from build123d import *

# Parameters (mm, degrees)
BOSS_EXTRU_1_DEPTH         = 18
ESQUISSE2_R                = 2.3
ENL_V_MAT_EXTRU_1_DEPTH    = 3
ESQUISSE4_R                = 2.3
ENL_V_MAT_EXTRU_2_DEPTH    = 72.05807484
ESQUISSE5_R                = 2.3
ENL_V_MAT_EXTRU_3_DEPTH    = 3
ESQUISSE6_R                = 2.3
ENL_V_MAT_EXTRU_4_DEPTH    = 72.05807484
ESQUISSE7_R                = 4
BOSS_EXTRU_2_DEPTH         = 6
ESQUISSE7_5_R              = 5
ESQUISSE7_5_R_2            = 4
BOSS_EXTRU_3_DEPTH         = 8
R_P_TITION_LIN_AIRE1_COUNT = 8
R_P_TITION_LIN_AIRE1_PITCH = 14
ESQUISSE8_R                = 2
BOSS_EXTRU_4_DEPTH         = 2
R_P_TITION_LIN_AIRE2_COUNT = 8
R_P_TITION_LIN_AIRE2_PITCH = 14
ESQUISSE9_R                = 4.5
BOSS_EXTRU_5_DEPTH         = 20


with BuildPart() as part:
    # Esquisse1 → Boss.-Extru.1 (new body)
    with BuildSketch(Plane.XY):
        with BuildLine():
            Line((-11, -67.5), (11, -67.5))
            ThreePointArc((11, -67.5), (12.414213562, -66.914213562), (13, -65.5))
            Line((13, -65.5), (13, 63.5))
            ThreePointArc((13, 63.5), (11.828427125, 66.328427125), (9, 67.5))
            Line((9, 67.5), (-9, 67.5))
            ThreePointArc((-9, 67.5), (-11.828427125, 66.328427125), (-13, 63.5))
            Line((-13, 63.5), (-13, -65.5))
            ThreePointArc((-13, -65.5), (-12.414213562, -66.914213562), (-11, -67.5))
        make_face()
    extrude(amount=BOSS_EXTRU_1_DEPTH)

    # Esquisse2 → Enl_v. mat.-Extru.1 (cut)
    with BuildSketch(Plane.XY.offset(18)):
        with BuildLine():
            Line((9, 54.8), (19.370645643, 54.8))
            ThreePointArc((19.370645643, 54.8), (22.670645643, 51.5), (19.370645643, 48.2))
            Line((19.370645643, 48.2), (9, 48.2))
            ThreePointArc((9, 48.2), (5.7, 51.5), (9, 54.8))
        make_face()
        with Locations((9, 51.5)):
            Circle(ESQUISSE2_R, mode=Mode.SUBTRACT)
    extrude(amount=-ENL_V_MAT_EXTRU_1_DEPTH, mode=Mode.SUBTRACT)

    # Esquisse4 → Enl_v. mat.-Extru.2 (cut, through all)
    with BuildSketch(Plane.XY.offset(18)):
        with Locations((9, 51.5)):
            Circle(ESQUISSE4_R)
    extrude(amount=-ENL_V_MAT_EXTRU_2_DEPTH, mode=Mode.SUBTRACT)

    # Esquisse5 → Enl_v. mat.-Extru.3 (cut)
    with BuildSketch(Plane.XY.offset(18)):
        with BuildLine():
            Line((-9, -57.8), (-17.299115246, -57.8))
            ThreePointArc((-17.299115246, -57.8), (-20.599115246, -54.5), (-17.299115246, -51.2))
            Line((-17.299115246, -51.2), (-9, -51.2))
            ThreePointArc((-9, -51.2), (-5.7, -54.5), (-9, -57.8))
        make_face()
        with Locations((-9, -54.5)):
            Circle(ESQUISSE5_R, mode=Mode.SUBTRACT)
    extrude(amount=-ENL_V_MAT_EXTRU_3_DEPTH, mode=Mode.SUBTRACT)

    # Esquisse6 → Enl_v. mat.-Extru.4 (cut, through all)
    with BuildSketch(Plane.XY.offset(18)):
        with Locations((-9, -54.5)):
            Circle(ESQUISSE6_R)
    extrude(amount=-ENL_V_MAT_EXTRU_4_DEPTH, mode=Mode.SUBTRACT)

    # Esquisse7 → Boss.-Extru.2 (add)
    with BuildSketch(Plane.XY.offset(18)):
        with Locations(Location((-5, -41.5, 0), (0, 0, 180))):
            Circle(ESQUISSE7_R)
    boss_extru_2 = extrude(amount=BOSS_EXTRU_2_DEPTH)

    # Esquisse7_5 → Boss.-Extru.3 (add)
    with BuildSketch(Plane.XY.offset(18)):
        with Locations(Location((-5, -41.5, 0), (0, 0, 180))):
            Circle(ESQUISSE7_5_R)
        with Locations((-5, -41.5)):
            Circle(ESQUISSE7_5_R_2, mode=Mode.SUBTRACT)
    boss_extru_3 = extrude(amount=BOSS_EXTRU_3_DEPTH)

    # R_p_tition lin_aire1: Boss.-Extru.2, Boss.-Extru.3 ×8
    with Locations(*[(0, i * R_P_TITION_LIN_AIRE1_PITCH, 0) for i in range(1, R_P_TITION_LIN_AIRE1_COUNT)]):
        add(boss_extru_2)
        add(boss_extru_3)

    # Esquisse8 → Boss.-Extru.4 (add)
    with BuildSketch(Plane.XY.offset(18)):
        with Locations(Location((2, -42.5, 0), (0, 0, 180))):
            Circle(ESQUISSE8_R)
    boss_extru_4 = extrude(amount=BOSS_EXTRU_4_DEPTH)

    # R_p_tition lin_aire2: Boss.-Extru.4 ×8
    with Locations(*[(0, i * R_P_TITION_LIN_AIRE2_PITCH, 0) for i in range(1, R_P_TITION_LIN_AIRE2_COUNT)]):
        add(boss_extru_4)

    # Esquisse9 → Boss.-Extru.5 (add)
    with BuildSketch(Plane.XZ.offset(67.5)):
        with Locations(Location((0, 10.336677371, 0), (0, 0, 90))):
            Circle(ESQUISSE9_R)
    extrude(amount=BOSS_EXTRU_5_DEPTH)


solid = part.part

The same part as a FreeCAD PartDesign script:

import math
import FreeCAD as App
import Part
import Sketcher

doc = App.newDocument("Part")
body = doc.addObject("PartDesign::Body", "Body")

# Sketch on XY plane
sketch1 = doc.addObject("Sketcher::SketchObject", "Sketch")
body.addObject(sketch1)
sketch1.AttachmentSupport = (doc.XY_Plane, [""])
sketch1.MapMode = "FlatFace"
sketch1.addGeometry(Part.LineSegment(App.Vector(-11, -67.5, 0), App.Vector(11, -67.5, 0)), False)
sketch1.addGeometry(Part.ArcOfCircle(Part.Circle(App.Vector(11, -65.5, 0), App.Vector(0, 0, 1), 2), math.radians(-90), math.radians(0)), False)
sketch1.addGeometry(Part.LineSegment(App.Vector(13, -65.5, 0), App.Vector(13, 63.5, 0)), False)
sketch1.addGeometry(Part.ArcOfCircle(Part.Circle(App.Vector(9, 63.5, 0), App.Vector(0, 0, 1), 4), math.radians(0), math.radians(90)), False)
sketch1.addGeometry(Part.LineSegment(App.Vector(9, 67.5, 0), App.Vector(-9, 67.5, 0)), False)
sketch1.addGeometry(Part.ArcOfCircle(Part.Circle(App.Vector(-9, 63.5, 0), App.Vector(0, 0, 1), 4), math.radians(90), math.radians(180)), False)
sketch1.addGeometry(Part.LineSegment(App.Vector(-13, 63.5, 0), App.Vector(-13, -65.5, 0)), False)
sketch1.addGeometry(Part.ArcOfCircle(Part.Circle(App.Vector(-11, -65.5, 0), App.Vector(0, 0, 1), 2), math.radians(-180), math.radians(-90)), False)
sketch1.addConstraint(Sketcher.Constraint("Tangent", 0, 2, 1, 1))
sketch1.addConstraint(Sketcher.Constraint("Tangent", 1, 2, 2, 1))
sketch1.addConstraint(Sketcher.Constraint("Tangent", 2, 2, 3, 1))
sketch1.addConstraint(Sketcher.Constraint("Tangent", 3, 2, 4, 1))
sketch1.addConstraint(Sketcher.Constraint("Tangent", 4, 2, 5, 1))
sketch1.addConstraint(Sketcher.Constraint("Tangent", 5, 2, 6, 1))
sketch1.addConstraint(Sketcher.Constraint("Tangent", 6, 2, 7, 1))
sketch1.addConstraint(Sketcher.Constraint("Tangent", 7, 2, 0, 1))
sketch1.addConstraint(Sketcher.Constraint("Horizontal", 0))
sketch1.addConstraint(Sketcher.Constraint("Vertical", 2))
sketch1.addConstraint(Sketcher.Constraint("Horizontal", 4))
sketch1.addConstraint(Sketcher.Constraint("Vertical", 6))
sketch1.addConstraint(Sketcher.Constraint("Equal", 3, 5))
sketch1.addConstraint(Sketcher.Constraint("Equal", 1, 7))
sketch1.addConstraint(Sketcher.Constraint("Radius", 1, 2.0))
sketch1.addConstraint(Sketcher.Constraint("Radius", 3, 4.0))
sketch1.addConstraint(Sketcher.Constraint("DistanceX", 0, 1, 0, 2, 22.0))
sketch1.addConstraint(Sketcher.Constraint("DistanceY", 2, 1, 2, 2, 129.0))
sketch1.addConstraint(Sketcher.Constraint("DistanceX", -1, 1, 1, 3, 11.0))
sketch1.addConstraint(Sketcher.Constraint("DistanceY", 1, 3, -1, 1, 65.5))
pad1 = doc.addObject("PartDesign::Pad", "Pad")
body.addObject(pad1)
pad1.Profile = sketch1
pad1.Length = 18

# Sketch on XY plane
sketch2 = doc.addObject("Sketcher::SketchObject", "Sketch001")
body.addObject(sketch2)
sketch2.AttachmentSupport = (doc.XY_Plane, [""])
sketch2.MapMode = "FlatFace"
sketch2.AttachmentOffset = App.Placement(App.Vector(0, 0, 18), App.Rotation())
sketch2.addGeometry(Part.LineSegment(App.Vector(19.4, 54.8, 0), App.Vector(9, 54.8, 0)), False)
sketch2.addGeometry(Part.ArcOfCircle(Part.Circle(App.Vector(9, 51.5, 0), App.Vector(0, 0, 1), 3.3), math.radians(90), math.radians(270)), False)
sketch2.addGeometry(Part.LineSegment(App.Vector(9, 48.2, 0), App.Vector(19.4, 48.2, 0)), False)
sketch2.addGeometry(Part.ArcOfCircle(Part.Circle(App.Vector(19.4, 51.5, 0), App.Vector(0, 0, 1), 3.3), math.radians(-90), math.radians(90)), False)
sketch2.addGeometry(Part.Circle(App.Vector(9, 51.5, 0), App.Vector(0, 0, 1), 2.3), False)
sketch2.addConstraint(Sketcher.Constraint("Tangent", 0, 2, 1, 1))
sketch2.addConstraint(Sketcher.Constraint("Tangent", 1, 2, 2, 1))
sketch2.addConstraint(Sketcher.Constraint("Tangent", 2, 2, 3, 1))
sketch2.addConstraint(Sketcher.Constraint("Tangent", 3, 2, 0, 1))
sketch2.addConstraint(Sketcher.Constraint("Horizontal", 0))
sketch2.addConstraint(Sketcher.Constraint("Horizontal", 2))
sketch2.addConstraint(Sketcher.Constraint("Coincident", 4, 3, 1, 3))
sketch2.addConstraint(Sketcher.Constraint("Diameter", 4, 4.6))
sketch2.addConstraint(Sketcher.Constraint("Radius", 1, 3.3))
sketch2.addConstraint(Sketcher.Constraint("DistanceX", -1, 1, 1, 3, 9.0))
sketch2.addConstraint(Sketcher.Constraint("DistanceY", -1, 1, 1, 3, 51.5))
sketch2.addConstraint(Sketcher.Constraint("DistanceX", 0, 2, 0, 1, 10.370646))
pocket1 = doc.addObject("PartDesign::Pocket", "Pocket")
body.addObject(pocket1)
pocket1.Profile = sketch2
pocket1.Length = 3

# Sketch on XY plane
sketch3 = doc.addObject("Sketcher::SketchObject", "Sketch002")
body.addObject(sketch3)
sketch3.AttachmentSupport = (doc.XY_Plane, [""])
sketch3.MapMode = "FlatFace"
sketch3.AttachmentOffset = App.Placement(App.Vector(0, 0, 18), App.Rotation())
sketch3.addGeometry(Part.Circle(App.Vector(9, 51.5, 0), App.Vector(0, 0, 1), 2.3), False)
sketch3.addConstraint(Sketcher.Constraint("Diameter", 0, 4.6))
sketch3.addConstraint(Sketcher.Constraint("DistanceX", -1, 1, 0, 3, 9.0))
sketch3.addConstraint(Sketcher.Constraint("DistanceY", -1, 1, 0, 3, 51.5))
pocket2 = doc.addObject("PartDesign::Pocket", "Pocket001")
body.addObject(pocket2)
pocket2.Profile = sketch3
pocket2.Type = "ThroughAll"

# Sketch on XY plane
sketch4 = doc.addObject("Sketcher::SketchObject", "Sketch003")
body.addObject(sketch4)
sketch4.AttachmentSupport = (doc.XY_Plane, [""])
sketch4.MapMode = "FlatFace"
sketch4.AttachmentOffset = App.Placement(App.Vector(0, 0, 18), App.Rotation())
sketch4.addGeometry(Part.LineSegment(App.Vector(-17.3, -57.8, 0), App.Vector(-9, -57.8, 0)), False)
sketch4.addGeometry(Part.ArcOfCircle(Part.Circle(App.Vector(-9, -54.5, 0), App.Vector(0, 0, 1), 3.3), math.radians(-90), math.radians(90)), False)
sketch4.addGeometry(Part.LineSegment(App.Vector(-9, -51.2, 0), App.Vector(-17.3, -51.2, 0)), False)
sketch4.addGeometry(Part.ArcOfCircle(Part.Circle(App.Vector(-17.3, -54.5, 0), App.Vector(0, 0, 1), 3.3), math.radians(90), math.radians(270)), False)
sketch4.addGeometry(Part.Circle(App.Vector(-9, -54.5, 0), App.Vector(0, 0, 1), 2.3), False)
sketch4.addConstraint(Sketcher.Constraint("Tangent", 0, 2, 1, 1))
sketch4.addConstraint(Sketcher.Constraint("Tangent", 1, 2, 2, 1))
sketch4.addConstraint(Sketcher.Constraint("Tangent", 2, 2, 3, 1))
sketch4.addConstraint(Sketcher.Constraint("Tangent", 3, 2, 0, 1))
sketch4.addConstraint(Sketcher.Constraint("Horizontal", 0))
sketch4.addConstraint(Sketcher.Constraint("Horizontal", 2))
sketch4.addConstraint(Sketcher.Constraint("Coincident", 4, 3, 1, 3))
sketch4.addConstraint(Sketcher.Constraint("Diameter", 4, 4.6))
sketch4.addConstraint(Sketcher.Constraint("Radius", 1, 3.3))
sketch4.addConstraint(Sketcher.Constraint("DistanceX", 1, 3, -1, 1, 9.0))
sketch4.addConstraint(Sketcher.Constraint("DistanceY", 1, 3, -1, 1, 54.5))
sketch4.addConstraint(Sketcher.Constraint("DistanceX", 0, 1, 0, 2, 8.299115))
pocket3 = doc.addObject("PartDesign::Pocket", "Pocket002")
body.addObject(pocket3)
pocket3.Profile = sketch4
pocket3.Length = 3

# Sketch on XY plane
sketch5 = doc.addObject("Sketcher::SketchObject", "Sketch004")
body.addObject(sketch5)
sketch5.AttachmentSupport = (doc.XY_Plane, [""])
sketch5.MapMode = "FlatFace"
sketch5.AttachmentOffset = App.Placement(App.Vector(0, 0, 18), App.Rotation())
sketch5.addGeometry(Part.Circle(App.Vector(-9, -54.5, 0), App.Vector(0, 0, 1), 2.3), False)
sketch5.addConstraint(Sketcher.Constraint("Diameter", 0, 4.6))
sketch5.addConstraint(Sketcher.Constraint("DistanceX", 0, 3, -1, 1, 9.0))
sketch5.addConstraint(Sketcher.Constraint("DistanceY", 0, 3, -1, 1, 54.5))
pocket4 = doc.addObject("PartDesign::Pocket", "Pocket003")
body.addObject(pocket4)
pocket4.Profile = sketch5
pocket4.Type = "ThroughAll"

# Sketch on XY plane
sketch6 = doc.addObject("Sketcher::SketchObject", "Sketch005")
body.addObject(sketch6)
sketch6.AttachmentSupport = (doc.XY_Plane, [""])
sketch6.MapMode = "FlatFace"
sketch6.AttachmentOffset = App.Placement(App.Vector(0, 0, 18), App.Rotation())
sketch6.addGeometry(Part.Circle(App.Vector(-5, -41.5, 0), App.Vector(0, 0, 1), 4), False)
sketch6.addConstraint(Sketcher.Constraint("Diameter", 0, 8.0))
sketch6.addConstraint(Sketcher.Constraint("DistanceX", 0, 3, -1, 1, 5.0))
sketch6.addConstraint(Sketcher.Constraint("DistanceY", 0, 3, -1, 1, 41.5))
pad2 = doc.addObject("PartDesign::Pad", "Pad001")
body.addObject(pad2)
pad2.Profile = sketch6
pad2.Length = 6

# Sketch on XY plane
sketch7 = doc.addObject("Sketcher::SketchObject", "Sketch006")
body.addObject(sketch7)
sketch7.AttachmentSupport = (doc.XY_Plane, [""])
sketch7.MapMode = "FlatFace"
sketch7.AttachmentOffset = App.Placement(App.Vector(0, 0, 18), App.Rotation())
sketch7.addGeometry(Part.Circle(App.Vector(-5, -41.5, 0), App.Vector(0, 0, 1), 5), False)
sketch7.addGeometry(Part.Circle(App.Vector(-5, -41.5, 0), App.Vector(0, 0, 1), 4), False)
sketch7.addConstraint(Sketcher.Constraint("Coincident", 1, 3, 0, 3))
sketch7.addConstraint(Sketcher.Constraint("Diameter", 0, 10.0))
sketch7.addConstraint(Sketcher.Constraint("Diameter", 1, 8.0))
sketch7.addConstraint(Sketcher.Constraint("DistanceX", 0, 3, -1, 1, 5.0))
sketch7.addConstraint(Sketcher.Constraint("DistanceY", 0, 3, -1, 1, 41.5))
pad3 = doc.addObject("PartDesign::Pad", "Pad002")
body.addObject(pad3)
pad3.Profile = sketch7
pad3.Length = 8
doc.recompute()

linearpattern = doc.addObject("PartDesign::LinearPattern", "LinearPattern")
body.addObject(linearpattern)
linearpattern.Originals = [pad2, pad3]
linearpattern.Direction = (doc.Y_Axis, [""])
linearpattern.Mode = "offset"
linearpattern.Offset = 14
linearpattern.Occurrences = 8
body.Tip = linearpattern

# Sketch on XY plane
sketch8 = doc.addObject("Sketcher::SketchObject", "Sketch007")
body.addObject(sketch8)
sketch8.AttachmentSupport = (doc.XY_Plane, [""])
sketch8.MapMode = "FlatFace"
sketch8.AttachmentOffset = App.Placement(App.Vector(0, 0, 18), App.Rotation())
sketch8.addGeometry(Part.Circle(App.Vector(2, -42.5, 0), App.Vector(0, 0, 1), 2), False)
sketch8.addConstraint(Sketcher.Constraint("Diameter", 0, 4.0))
sketch8.addConstraint(Sketcher.Constraint("DistanceX", -1, 1, 0, 3, 2.0))
sketch8.addConstraint(Sketcher.Constraint("DistanceY", 0, 3, -1, 1, 42.5))
pad4 = doc.addObject("PartDesign::Pad", "Pad003")
body.addObject(pad4)
pad4.Profile = sketch8
pad4.Length = 2
doc.recompute()

linearpattern2 = doc.addObject("PartDesign::LinearPattern", "LinearPattern001")
body.addObject(linearpattern2)
linearpattern2.Originals = [pad4]
linearpattern2.Direction = (doc.Y_Axis, [""])
linearpattern2.Mode = "offset"
linearpattern2.Offset = 14
linearpattern2.Occurrences = 8
body.Tip = linearpattern2

# Sketch on XZ plane
sketch9 = doc.addObject("Sketcher::SketchObject", "Sketch008")
body.addObject(sketch9)
sketch9.AttachmentSupport = (doc.XZ_Plane, [""])
sketch9.MapMode = "FlatFace"
sketch9.AttachmentOffset = App.Placement(App.Vector(0, 0, 67.5), App.Rotation())
sketch9.addGeometry(Part.Circle(App.Vector(0, 10.3, 0), App.Vector(0, 0, 1), 4.5), False)
sketch9.addConstraint(Sketcher.Constraint("PointOnObject", 0, 3, -2))
sketch9.addConstraint(Sketcher.Constraint("Diameter", 0, 9.0))
sketch9.addConstraint(Sketcher.Constraint("DistanceY", -1, 1, 0, 3, 10.336677))
pad5 = doc.addObject("PartDesign::Pad", "Pad004")
body.addObject(pad5)
pad5.Profile = sketch9
pad5.Length = 20

doc.recompute()
